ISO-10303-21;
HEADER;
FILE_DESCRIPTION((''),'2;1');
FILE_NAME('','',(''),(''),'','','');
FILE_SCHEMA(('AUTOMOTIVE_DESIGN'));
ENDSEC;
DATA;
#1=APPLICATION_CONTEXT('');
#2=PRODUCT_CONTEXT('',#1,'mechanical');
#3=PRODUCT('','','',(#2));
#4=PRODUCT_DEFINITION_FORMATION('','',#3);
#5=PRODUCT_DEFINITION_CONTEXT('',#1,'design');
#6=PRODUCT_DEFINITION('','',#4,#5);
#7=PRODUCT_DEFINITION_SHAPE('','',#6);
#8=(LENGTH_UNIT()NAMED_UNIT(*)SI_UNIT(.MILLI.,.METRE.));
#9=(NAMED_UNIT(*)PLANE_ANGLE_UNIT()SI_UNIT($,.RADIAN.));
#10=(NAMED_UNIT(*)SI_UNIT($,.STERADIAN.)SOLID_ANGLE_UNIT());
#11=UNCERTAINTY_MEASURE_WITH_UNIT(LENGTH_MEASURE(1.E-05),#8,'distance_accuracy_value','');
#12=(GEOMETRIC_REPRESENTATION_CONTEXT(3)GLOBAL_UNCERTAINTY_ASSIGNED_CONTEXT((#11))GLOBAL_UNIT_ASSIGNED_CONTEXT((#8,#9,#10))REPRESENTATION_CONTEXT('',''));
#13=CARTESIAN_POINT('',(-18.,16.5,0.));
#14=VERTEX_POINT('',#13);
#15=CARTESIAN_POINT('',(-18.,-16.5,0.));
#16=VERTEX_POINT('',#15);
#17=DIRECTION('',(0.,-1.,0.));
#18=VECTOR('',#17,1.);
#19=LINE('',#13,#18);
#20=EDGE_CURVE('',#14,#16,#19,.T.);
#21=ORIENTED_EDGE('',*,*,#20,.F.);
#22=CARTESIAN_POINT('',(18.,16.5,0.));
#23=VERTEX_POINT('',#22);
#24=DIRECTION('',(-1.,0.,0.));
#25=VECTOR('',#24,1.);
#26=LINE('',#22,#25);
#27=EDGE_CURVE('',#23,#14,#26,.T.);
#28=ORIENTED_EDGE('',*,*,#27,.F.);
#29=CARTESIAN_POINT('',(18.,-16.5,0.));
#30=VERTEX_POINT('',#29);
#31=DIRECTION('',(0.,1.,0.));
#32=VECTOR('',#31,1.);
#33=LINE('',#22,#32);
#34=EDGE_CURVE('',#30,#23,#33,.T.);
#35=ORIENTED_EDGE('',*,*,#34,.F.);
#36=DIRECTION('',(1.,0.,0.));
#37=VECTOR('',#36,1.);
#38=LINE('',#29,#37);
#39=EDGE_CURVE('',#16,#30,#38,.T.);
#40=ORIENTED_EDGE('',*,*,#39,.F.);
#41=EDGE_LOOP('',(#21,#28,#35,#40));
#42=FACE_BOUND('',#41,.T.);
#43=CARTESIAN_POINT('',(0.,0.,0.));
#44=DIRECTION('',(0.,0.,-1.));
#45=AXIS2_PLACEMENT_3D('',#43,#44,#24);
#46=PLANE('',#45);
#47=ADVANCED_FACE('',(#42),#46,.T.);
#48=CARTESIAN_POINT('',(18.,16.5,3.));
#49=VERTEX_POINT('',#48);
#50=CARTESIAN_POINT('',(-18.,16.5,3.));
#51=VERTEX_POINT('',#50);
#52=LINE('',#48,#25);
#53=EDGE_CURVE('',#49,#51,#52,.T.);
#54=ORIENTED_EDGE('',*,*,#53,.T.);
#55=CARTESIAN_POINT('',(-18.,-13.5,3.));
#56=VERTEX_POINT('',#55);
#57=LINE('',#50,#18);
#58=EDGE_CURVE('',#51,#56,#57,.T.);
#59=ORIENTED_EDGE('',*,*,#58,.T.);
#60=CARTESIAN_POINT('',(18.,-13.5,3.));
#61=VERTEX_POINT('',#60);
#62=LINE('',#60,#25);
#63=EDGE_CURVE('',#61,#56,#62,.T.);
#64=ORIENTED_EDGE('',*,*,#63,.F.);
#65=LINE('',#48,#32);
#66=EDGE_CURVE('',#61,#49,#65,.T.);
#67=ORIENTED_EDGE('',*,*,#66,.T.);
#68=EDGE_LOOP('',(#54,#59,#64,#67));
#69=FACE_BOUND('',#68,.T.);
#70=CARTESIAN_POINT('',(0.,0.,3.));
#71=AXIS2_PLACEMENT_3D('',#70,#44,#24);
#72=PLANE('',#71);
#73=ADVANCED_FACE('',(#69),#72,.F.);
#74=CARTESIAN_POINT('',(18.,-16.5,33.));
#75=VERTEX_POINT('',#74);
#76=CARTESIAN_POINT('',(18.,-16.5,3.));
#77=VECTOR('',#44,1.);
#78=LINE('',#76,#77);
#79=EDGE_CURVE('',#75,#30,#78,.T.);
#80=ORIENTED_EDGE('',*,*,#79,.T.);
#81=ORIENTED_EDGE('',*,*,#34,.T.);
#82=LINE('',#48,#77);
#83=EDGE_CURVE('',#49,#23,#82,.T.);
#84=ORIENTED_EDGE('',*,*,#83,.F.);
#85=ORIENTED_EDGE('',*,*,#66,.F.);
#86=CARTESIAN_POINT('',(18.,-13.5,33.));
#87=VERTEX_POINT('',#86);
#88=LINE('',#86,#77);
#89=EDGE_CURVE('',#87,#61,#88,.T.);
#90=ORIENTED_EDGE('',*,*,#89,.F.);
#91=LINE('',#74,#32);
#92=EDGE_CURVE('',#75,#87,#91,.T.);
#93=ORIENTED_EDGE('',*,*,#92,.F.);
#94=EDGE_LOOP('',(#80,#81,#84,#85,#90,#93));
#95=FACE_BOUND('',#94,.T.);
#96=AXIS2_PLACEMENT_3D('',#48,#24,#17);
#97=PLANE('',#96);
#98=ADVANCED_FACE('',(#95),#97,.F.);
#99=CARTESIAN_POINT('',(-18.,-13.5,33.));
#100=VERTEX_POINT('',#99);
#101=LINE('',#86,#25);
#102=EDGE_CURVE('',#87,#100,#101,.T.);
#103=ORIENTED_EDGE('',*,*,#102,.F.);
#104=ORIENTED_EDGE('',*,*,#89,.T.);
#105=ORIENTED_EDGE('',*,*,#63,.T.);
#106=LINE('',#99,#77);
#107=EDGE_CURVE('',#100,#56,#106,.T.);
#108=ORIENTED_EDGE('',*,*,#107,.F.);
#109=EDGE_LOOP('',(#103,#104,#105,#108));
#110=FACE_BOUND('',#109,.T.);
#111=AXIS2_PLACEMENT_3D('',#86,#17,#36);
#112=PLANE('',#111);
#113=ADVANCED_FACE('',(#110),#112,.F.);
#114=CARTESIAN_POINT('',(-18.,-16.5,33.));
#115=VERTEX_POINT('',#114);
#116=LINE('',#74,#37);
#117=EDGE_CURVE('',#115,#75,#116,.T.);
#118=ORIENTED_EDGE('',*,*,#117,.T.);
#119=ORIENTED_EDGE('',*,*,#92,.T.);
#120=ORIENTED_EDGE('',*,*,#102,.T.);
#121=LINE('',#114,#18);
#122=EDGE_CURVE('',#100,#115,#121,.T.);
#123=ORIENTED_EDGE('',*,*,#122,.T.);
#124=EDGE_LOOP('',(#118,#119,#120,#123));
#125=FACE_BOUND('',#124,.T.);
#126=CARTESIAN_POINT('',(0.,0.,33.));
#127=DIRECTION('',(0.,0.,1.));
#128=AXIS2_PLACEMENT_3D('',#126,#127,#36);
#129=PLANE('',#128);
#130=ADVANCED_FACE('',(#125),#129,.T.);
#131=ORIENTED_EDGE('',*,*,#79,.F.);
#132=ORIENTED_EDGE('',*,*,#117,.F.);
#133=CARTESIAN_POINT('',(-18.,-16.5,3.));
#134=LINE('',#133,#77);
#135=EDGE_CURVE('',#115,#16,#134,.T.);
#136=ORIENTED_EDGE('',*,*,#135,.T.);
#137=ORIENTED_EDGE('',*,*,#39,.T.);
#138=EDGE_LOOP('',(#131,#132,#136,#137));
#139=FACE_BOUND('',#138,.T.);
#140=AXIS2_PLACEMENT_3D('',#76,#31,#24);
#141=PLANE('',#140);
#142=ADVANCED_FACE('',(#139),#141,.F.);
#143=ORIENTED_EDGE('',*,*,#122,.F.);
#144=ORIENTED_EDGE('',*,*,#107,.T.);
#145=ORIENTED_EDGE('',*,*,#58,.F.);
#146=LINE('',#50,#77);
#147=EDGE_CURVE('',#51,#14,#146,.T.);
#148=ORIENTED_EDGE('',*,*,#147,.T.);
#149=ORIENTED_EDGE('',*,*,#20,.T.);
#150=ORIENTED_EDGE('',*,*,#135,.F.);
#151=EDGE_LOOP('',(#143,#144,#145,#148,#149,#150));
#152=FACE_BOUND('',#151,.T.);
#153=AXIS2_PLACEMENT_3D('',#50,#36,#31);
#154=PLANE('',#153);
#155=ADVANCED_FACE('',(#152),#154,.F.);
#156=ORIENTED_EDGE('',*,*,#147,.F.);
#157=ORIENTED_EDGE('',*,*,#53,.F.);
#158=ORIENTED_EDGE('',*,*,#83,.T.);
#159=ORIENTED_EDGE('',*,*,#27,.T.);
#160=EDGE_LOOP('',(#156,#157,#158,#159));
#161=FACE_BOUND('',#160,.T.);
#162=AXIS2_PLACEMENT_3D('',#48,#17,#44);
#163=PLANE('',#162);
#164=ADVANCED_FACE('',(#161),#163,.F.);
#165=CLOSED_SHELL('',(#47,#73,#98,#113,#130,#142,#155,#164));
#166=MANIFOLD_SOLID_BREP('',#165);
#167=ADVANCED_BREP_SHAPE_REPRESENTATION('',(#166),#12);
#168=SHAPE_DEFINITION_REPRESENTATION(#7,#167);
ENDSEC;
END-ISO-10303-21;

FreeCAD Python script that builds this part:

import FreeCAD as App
import Part
import Sketcher
from FreeCAD import Vector
Q = App.Units.Quantity


def add_polygon(sketch, points):
    """Adds a closed chain of lines whose ends are joined by coincident constraints."""
    first, n = sketch.GeometryCount, len(points)
    for a, b in zip(points, points[1:] + points[:1]):
        sketch.addGeometry(Part.LineSegment(App.Vector(*a, 0), App.Vector(*b, 0)), False)
    for i in range(n):
        sketch.addConstraint(Sketcher.Constraint("Coincident", first + i, 2, first + (i + 1) % n, 1))

doc = App.newDocument("Part")
body = doc.addObject("PartDesign::Body", "Body")

sketch1 = body.newObject("Sketcher::SketchObject", "Sketch")
sketch1.AttachmentSupport = (doc.getObject("XY_Plane"), [""])
sketch1.MapMode = "FlatFace"
add_polygon(sketch1, [(-18, 16), (-18, -16), (18, -16), (18, 16)])
sketch1.addConstraint(Sketcher.Constraint("Vertical", 0))
sketch1.addConstraint(Sketcher.Constraint("Horizontal", 1))
sketch1.addConstraint(Sketcher.Constraint("Vertical", 2))
sketch1.addConstraint(Sketcher.Constraint("Horizontal", 3))
sketch1.addConstraint(Sketcher.Constraint("Symmetric", 0, 2, 2, 2, -1, 1))
sketch1.addConstraint(Sketcher.Constraint("DistanceX", 1, 1, 1, 2, Q("36 mm")))
sketch1.addConstraint(Sketcher.Constraint("DistanceY", 0, 2, 0, 1, Q("33 mm")))
pad1 = body.newObject("PartDesign::Pad", "Pad")
pad1.Profile = sketch1
pad1.Length = 3

sketch2 = body.newObject("Sketcher::SketchObject", "Sketch001")
sketch2.AttachmentSupport = (doc.getObject("XY_Plane"), [""])
sketch2.MapMode = "FlatFace"
sketch2.AttachmentOffset = App.Placement(Vector(0, 0, 3), App.Rotation())
add_polygon(sketch2, [(-18, -13.5), (-18, -16.5), (18, -16.5), (18, -13.5)])
sketch2.addConstraint(Sketcher.Constraint("Vertical", 0))
sketch2.addConstraint(Sketcher.Constraint("Horizontal", 1))
sketch2.addConstraint(Sketcher.Constraint("Vertical", 2))
sketch2.addConstraint(Sketcher.Constraint("Horizontal", 3))
sketch2.addConstraint(Sketcher.Constraint("DistanceX", 1, 1, 1, 2, Q("36 mm")))
sketch2.addConstraint(Sketcher.Constraint("DistanceY", 0, 2, 0, 1, Q("3 mm")))
sketch2.addConstraint(Sketcher.Constraint("DistanceX", 0, 2, -1, 1, Q("18 mm")))
sketch2.addConstraint(Sketcher.Constraint("DistanceY", 0, 2, -1, 1, Q("16.5 mm")))
pad2 = body.newObject("PartDesign::Pad", "Pad001")
pad2.Profile = sketch2
pad2.Length = 30

doc.recompute()
